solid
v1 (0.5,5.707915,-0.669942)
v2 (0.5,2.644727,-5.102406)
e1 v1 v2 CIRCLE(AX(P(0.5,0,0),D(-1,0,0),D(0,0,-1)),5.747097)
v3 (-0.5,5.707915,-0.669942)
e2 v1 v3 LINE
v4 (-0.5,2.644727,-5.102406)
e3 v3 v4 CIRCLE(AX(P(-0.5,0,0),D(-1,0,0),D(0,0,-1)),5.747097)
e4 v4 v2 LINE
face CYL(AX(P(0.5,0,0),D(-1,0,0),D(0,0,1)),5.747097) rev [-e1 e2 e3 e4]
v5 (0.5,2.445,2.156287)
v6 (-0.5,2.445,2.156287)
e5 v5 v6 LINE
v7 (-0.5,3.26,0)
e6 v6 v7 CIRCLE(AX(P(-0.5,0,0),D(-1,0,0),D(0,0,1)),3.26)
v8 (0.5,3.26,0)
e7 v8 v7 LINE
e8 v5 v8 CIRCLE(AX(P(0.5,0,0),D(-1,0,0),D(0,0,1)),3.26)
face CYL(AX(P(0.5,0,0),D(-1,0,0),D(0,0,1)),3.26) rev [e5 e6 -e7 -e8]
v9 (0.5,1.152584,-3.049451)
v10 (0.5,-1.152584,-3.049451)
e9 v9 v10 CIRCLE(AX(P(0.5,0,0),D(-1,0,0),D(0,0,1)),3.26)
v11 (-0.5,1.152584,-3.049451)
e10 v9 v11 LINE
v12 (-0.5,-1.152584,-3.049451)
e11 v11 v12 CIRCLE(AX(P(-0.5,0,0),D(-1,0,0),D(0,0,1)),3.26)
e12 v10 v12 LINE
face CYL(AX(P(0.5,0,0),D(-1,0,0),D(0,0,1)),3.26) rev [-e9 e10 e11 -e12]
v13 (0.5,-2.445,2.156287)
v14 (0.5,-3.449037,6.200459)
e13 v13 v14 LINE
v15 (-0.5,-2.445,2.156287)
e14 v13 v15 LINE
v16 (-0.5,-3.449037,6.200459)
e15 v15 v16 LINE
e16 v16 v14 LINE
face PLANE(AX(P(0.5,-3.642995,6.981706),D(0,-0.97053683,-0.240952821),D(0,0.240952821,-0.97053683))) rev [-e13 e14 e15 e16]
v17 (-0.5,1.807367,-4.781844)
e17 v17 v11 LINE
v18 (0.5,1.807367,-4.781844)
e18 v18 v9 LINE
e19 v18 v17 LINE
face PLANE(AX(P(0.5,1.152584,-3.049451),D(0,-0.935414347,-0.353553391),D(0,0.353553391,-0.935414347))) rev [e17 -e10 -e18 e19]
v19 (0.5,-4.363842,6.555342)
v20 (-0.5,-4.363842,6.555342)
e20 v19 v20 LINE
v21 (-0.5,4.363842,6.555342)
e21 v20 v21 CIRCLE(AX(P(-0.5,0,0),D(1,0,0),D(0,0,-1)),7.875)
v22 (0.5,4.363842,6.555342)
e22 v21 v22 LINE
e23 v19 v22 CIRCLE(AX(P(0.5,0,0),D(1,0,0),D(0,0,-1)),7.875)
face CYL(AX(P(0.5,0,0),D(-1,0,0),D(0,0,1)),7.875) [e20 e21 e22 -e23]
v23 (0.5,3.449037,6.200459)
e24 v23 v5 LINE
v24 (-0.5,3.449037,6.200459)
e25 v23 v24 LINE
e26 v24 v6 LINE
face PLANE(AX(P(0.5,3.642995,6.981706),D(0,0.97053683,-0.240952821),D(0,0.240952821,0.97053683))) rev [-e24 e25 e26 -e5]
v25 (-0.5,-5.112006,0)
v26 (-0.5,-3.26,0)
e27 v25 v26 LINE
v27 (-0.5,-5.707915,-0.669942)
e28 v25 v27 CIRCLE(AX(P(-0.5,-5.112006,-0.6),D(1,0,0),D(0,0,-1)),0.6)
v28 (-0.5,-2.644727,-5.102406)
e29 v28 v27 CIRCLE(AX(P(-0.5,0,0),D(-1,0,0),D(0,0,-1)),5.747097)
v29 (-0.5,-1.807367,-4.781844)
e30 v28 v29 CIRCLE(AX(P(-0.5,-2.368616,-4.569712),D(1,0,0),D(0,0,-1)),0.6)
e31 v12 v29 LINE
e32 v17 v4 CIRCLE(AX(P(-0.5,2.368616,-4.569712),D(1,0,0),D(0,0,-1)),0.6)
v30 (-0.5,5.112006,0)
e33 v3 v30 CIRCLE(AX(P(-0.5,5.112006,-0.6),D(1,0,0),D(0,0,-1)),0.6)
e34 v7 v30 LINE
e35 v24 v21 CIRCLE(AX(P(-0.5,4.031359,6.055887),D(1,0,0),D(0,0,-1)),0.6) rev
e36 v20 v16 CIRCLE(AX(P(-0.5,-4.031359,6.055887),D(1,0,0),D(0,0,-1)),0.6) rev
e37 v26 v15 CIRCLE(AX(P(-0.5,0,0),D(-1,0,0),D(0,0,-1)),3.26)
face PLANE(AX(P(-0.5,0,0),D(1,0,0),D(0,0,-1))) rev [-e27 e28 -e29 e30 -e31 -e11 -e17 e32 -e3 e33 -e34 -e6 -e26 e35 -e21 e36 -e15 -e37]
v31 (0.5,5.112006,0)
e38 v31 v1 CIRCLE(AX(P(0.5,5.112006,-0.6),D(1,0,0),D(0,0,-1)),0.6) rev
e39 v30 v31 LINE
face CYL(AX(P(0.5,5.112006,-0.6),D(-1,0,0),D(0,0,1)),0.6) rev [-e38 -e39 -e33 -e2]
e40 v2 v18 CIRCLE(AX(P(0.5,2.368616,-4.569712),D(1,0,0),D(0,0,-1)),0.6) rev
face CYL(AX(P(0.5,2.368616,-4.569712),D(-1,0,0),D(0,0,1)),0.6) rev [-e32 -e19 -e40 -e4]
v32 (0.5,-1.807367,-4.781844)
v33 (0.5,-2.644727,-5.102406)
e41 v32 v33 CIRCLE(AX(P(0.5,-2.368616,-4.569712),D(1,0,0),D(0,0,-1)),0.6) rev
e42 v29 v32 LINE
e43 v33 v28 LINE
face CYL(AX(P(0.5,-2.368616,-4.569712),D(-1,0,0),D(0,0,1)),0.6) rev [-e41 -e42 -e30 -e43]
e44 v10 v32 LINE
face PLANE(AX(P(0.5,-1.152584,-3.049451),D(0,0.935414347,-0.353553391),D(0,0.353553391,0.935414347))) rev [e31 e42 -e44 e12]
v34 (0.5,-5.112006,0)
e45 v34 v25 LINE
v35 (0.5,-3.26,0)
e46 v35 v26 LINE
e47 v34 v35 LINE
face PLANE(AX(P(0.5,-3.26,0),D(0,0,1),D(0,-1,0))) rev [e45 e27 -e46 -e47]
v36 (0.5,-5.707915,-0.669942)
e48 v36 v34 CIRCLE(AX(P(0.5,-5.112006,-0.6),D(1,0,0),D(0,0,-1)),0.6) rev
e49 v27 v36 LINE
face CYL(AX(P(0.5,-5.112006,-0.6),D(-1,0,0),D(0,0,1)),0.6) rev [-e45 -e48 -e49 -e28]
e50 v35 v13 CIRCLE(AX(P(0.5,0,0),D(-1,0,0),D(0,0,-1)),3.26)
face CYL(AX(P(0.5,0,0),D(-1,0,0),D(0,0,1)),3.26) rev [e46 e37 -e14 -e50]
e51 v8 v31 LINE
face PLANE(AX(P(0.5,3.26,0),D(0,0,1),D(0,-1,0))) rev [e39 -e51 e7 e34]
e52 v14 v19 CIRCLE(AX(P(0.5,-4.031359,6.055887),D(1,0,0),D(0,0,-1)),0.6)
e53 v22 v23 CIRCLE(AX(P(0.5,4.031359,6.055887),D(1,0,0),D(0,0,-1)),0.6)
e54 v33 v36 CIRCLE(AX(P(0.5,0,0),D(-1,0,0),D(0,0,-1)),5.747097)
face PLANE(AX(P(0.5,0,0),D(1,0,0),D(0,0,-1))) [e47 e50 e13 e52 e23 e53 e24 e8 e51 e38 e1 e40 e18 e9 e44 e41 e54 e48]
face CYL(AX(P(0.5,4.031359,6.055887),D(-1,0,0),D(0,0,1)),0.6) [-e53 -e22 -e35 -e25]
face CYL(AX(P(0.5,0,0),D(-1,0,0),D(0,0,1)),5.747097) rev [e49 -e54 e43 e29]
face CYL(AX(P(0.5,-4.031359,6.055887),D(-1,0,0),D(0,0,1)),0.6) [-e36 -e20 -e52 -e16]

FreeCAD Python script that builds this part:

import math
import FreeCAD as App
import Part
import Sketcher
Q = App.Units.Quantity


def edges_at(feature, points):
    """Names of the edges that pass closest to the given points."""
    edges = feature.Shape.Edges
    near = lambda p: min(range(len(edges)), key=lambda i: edges[i].distToShape(Part.Vertex(*p))[0])
    return sorted({f"Edge{near(p) + 1}" for p in points})

doc = App.newDocument("Part")
body = doc.addObject("PartDesign::Body", "Body")

sketch1 = body.newObject("Sketcher::SketchObject", "Sketch")
sketch1.AttachmentSupport = (doc.getObject("YZ_Plane"), [""])
sketch1.MapMode = "FlatFace"
sketch1.addGeometry(Part.LineSegment(App.Vector(-2.4, 2.2, 0), App.Vector(-3.6, 7, 0)), False)
sketch1.addGeometry(Part.ArcOfCircle(Part.Circle(App.Vector(0, 0, 0), App.Vector(0, 0, 1), 7.9), math.radians(118), math.radians(422)), False)
sketch1.addGeometry(Part.LineSegment(App.Vector(3.6, 7, 0), App.Vector(2.4, 2.2, 0)), False)
sketch1.addGeometry(Part.ArcOfCircle(Part.Circle(App.Vector(0, 0, 0), App.Vector(0, 0, 1), 3.3), math.radians(0), math.radians(41)), False)
sketch1.addGeometry(Part.LineSegment(App.Vector(3.3, 0, 0), App.Vector(5.7, 0, 0)), False)
sketch1.addGeometry(Part.ArcOfCircle(Part.Circle(App.Vector(0, 0, 0), App.Vector(0, 0, 1), 5.7), math.radians(-69), math.radians(0)), False)
sketch1.addGeometry(Part.LineSegment(App.Vector(2, -5.4, 0), App.Vector(1.2, -3, 0)), False)
sketch1.addGeometry(Part.ArcOfCircle(Part.Circle(App.Vector(0, 0, 0), App.Vector(0, 0, 1), 3.3), math.radians(-111), math.radians(-69)), False)
sketch1.addGeometry(Part.LineSegment(App.Vector(-1.2, -3, 0), App.Vector(-2, -5.4, 0)), False)
sketch1.addGeometry(Part.ArcOfCircle(Part.Circle(App.Vector(0, 0, 0), App.Vector(0, 0, 1), 5.7), math.radians(180), math.radians(249)), False)
sketch1.addGeometry(Part.LineSegment(App.Vector(-5.7, 0, 0), App.Vector(-3.3, 0, 0)), False)
sketch1.addGeometry(Part.ArcOfCircle(Part.Circle(App.Vector(0, 0, 0), App.Vector(0, 0, 1), 3.3), math.radians(139), math.radians(180)), False)
sketch1.addConstraint(Sketcher.Constraint("Coincident", 0, 2, 1, 1))
sketch1.addConstraint(Sketcher.Constraint("Coincident", 1, 2, 2, 1))
sketch1.addConstraint(Sketcher.Constraint("Coincident", 2, 2, 3, 2))
sketch1.addConstraint(Sketcher.Constraint("Coincident", 3, 1, 4, 1))
sketch1.addConstraint(Sketcher.Constraint("Coincident", 4, 2, 5, 2))
sketch1.addConstraint(Sketcher.Constraint("Coincident", 5, 1, 6, 1))
sketch1.addConstraint(Sketcher.Constraint("Coincident", 6, 2, 7, 2))
sketch1.addConstraint(Sketcher.Constraint("Coincident", 7, 1, 8, 1))
sketch1.addConstraint(Sketcher.Constraint("Coincident", 8, 2, 9, 2))
sketch1.addConstraint(Sketcher.Constraint("Coincident", 9, 1, 10, 1))
sketch1.addConstraint(Sketcher.Constraint("Coincident", 10, 2, 11, 2))
sketch1.addConstraint(Sketcher.Constraint("Coincident", 11, 1, 0, 1))
sketch1.addConstraint(Sketcher.Constraint("Horizontal", 4))
sketch1.addConstraint(Sketcher.Constraint("Horizontal", 10))
sketch1.addConstraint(Sketcher.Constraint("Coincident", 1, 3, -1, 1))
sketch1.addConstraint(Sketcher.Constraint("Coincident", 3, 3, -1, 1))
sketch1.addConstraint(Sketcher.Constraint("Coincident", 5, 3, -1, 1))
sketch1.addConstraint(Sketcher.Constraint("Coincident", 7, 3, -1, 1))
sketch1.addConstraint(Sketcher.Constraint("Coincident", 9, 3, -1, 1))
sketch1.addConstraint(Sketcher.Constraint("Coincident", 11, 3, -1, 1))
sketch1.addConstraint(Sketcher.Constraint("Equal", 3, 7))
sketch1.addConstraint(Sketcher.Constraint("Equal", 5, 9))
sketch1.addConstraint(Sketcher.Constraint("Equal", 7, 11))
sketch1.addConstraint(Sketcher.Constraint("PointOnObject", 3, 1, -1))
sketch1.addConstraint(Sketcher.Constraint("PointOnObject", 9, 1, -1))
sketch1.addConstraint(Sketcher.Constraint("Horizontal", 0, 2, 1, 2))
sketch1.addConstraint(Sketcher.Constraint("Horizontal", 6, 2, 7, 1))
sketch1.addConstraint(Sketcher.Constraint("Horizontal", 5, 1, 8, 2))
sketch1.addConstraint(Sketcher.Constraint("Horizontal", 2, 2, 11, 1))
sketch1.addConstraint(Sketcher.Constraint("Radius", 3, Q("3.26 mm")))
sketch1.addConstraint(Sketcher.Constraint("Radius", 1, Q("7.875 mm")))
sketch1.addConstraint(Sketcher.Constraint("DistanceX", -1, 1, 2, 2, Q("2.445 mm")))
sketch1.addConstraint(Sketcher.Constraint("Radius", 5, Q("5.747097 mm")))
sketch1.addConstraint(Sketcher.Constraint("DistanceY", 6, 2, -1, 1, Q("3.049451 mm")))
sketch1.addConstraint(Sketcher.Constraint("DistanceX", 0, 2, 1, 2, Q("7.28599 mm")))
sketch1.addConstraint(Sketcher.Constraint("DistanceX", 6, 2, 5, 1, Q("0.879321 mm")))
pad1 = body.newObject("PartDesign::Pad", "Pad")
pad1.Profile = sketch1
pad1.Length = 1
pad1.Midplane = True
doc.recompute()

fillet = body.newObject("PartDesign::Fillet", "Fillet")
fillet.Base = (pad1, edges_at(pad1, [
    (0, -3.643, 6.982),
    (0, -5.747, 0),
    (0, -2.032, -5.376),
    (0, 2.032, -5.376),
    (0, 5.747, 0),
    (0, 3.643, 6.982),
]))
fillet.Radius = 0.6

doc.recompute()
